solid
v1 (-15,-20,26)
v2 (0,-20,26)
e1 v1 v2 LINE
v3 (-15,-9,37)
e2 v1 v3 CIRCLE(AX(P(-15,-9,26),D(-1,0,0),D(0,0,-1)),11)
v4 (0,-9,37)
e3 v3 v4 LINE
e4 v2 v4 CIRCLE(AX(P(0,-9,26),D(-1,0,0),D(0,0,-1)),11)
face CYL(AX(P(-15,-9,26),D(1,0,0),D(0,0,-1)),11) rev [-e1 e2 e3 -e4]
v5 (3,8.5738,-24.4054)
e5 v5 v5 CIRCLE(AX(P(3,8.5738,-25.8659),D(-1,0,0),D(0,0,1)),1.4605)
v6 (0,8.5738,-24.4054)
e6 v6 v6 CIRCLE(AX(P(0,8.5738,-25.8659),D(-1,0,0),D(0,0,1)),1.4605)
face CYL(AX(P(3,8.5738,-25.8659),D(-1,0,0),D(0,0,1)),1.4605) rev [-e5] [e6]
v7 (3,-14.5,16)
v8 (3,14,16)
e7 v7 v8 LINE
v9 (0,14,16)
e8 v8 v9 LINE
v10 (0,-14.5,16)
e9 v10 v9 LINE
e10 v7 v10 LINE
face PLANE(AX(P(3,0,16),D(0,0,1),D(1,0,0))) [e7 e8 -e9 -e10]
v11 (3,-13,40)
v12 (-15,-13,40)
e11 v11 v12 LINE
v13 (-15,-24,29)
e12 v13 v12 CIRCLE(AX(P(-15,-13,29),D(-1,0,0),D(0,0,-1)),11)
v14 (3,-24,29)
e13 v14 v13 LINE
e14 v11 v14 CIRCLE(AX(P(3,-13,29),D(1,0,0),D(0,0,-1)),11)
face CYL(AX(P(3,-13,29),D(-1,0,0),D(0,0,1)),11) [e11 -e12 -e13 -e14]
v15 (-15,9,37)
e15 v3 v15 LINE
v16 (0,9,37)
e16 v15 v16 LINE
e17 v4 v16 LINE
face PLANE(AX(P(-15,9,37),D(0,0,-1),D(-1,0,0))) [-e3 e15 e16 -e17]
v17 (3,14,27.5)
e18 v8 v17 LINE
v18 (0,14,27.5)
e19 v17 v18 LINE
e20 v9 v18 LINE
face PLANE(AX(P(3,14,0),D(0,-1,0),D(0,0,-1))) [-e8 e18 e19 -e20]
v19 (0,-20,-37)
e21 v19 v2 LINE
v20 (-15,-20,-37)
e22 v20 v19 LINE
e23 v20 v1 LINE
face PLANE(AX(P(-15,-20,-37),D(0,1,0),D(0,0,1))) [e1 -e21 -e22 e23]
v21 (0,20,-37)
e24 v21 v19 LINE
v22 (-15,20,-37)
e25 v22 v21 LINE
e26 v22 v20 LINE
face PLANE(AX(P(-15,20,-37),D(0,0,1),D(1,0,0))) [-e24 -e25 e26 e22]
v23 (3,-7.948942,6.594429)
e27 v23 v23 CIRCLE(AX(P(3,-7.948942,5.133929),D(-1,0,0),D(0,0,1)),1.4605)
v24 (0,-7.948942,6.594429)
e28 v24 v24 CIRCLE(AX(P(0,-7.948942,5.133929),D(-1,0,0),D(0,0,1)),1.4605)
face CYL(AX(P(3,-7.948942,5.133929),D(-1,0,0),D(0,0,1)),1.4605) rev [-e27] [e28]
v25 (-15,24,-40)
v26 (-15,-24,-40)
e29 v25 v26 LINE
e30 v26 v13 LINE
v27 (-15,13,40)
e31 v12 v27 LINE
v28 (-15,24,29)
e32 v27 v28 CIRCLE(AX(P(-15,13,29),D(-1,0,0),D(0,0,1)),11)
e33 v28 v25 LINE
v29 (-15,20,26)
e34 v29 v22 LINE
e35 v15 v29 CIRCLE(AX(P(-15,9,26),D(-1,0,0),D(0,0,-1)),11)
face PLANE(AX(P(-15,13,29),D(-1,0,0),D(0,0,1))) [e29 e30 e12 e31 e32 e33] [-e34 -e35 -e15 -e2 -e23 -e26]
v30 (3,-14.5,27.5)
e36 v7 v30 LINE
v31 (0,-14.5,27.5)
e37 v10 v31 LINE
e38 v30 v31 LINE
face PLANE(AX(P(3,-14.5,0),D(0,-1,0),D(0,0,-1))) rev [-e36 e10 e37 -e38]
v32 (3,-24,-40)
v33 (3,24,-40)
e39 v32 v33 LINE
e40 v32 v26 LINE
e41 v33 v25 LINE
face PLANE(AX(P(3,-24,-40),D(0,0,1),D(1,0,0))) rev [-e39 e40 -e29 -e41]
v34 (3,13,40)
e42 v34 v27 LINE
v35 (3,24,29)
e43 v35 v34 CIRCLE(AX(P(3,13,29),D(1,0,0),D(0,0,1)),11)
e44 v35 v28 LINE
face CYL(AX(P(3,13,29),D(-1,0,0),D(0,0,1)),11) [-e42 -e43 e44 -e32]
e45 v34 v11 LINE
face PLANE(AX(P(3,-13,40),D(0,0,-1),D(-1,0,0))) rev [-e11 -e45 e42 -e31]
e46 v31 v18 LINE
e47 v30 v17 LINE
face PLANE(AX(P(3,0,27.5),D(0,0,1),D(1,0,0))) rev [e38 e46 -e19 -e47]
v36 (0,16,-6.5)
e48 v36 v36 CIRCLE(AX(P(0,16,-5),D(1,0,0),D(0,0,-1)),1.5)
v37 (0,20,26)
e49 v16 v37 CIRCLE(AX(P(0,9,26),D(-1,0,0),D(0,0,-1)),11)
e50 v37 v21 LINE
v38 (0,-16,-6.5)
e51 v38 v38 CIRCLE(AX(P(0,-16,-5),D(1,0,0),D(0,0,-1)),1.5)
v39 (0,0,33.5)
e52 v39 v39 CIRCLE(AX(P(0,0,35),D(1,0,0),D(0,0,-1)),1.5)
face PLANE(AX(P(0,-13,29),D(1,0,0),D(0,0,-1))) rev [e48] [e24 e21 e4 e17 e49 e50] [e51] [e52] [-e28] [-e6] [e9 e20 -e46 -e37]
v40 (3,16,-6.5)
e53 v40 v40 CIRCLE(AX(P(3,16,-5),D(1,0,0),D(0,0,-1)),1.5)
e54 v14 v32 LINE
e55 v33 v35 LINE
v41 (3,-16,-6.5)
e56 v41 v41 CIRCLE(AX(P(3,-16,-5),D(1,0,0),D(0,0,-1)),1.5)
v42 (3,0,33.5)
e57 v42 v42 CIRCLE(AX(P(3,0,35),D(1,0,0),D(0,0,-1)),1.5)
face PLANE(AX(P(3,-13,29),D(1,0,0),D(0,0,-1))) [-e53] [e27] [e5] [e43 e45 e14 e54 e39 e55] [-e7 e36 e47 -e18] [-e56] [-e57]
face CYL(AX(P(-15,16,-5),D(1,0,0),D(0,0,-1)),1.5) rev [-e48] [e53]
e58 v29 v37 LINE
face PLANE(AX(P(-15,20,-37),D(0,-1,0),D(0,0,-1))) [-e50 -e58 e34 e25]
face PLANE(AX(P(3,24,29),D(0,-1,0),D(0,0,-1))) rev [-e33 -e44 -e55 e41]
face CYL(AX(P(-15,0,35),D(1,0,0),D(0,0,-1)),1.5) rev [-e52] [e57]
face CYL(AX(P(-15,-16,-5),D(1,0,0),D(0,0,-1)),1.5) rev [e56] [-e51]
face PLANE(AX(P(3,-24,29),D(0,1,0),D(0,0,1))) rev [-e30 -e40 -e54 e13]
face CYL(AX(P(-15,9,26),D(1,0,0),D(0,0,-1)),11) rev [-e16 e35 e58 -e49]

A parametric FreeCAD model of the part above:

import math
import FreeCAD as App
import Part
import Sketcher
Q = App.Units.Quantity

doc = App.newDocument("Part")
body = doc.addObject("PartDesign::Body", "Body")

sketch1 = body.newObject("Sketcher::SketchObject", "Sketch")
sketch1.AttachmentSupport = (doc.getObject("YZ_Plane"), [""])
sketch1.MapMode = "FlatFace"
sketch1.addGeometry(Part.LineSegment(App.Vector(13, 40, 0), App.Vector(-13, 40, 0)), False)
sketch1.addGeometry(Part.ArcOfCircle(Part.Circle(App.Vector(-13, 29, 0), App.Vector(0, 0, 1), 11), math.radians(90), math.radians(180)), False)
sketch1.addGeometry(Part.LineSegment(App.Vector(-24, 29, 0), App.Vector(-24, -40, 0)), False)
sketch1.addGeometry(Part.LineSegment(App.Vector(-24, -40, 0), App.Vector(24, -40, 0)), False)
sketch1.addGeometry(Part.LineSegment(App.Vector(24, -40, 0), App.Vector(24, 29, 0)), False)
sketch1.addGeometry(Part.ArcOfCircle(Part.Circle(App.Vector(13, 29, 0), App.Vector(0, 0, 1), 11), math.radians(0), math.radians(90)), False)
sketch1.addConstraint(Sketcher.Constraint("Tangent", 0, 2, 1, 1))
sketch1.addConstraint(Sketcher.Constraint("Tangent", 1, 2, 2, 1))
sketch1.addConstraint(Sketcher.Constraint("Coincident", 2, 2, 3, 1))
sketch1.addConstraint(Sketcher.Constraint("Coincident", 3, 2, 4, 1))
sketch1.addConstraint(Sketcher.Constraint("Tangent", 4, 2, 5, 1))
sketch1.addConstraint(Sketcher.Constraint("Tangent", 5, 2, 0, 1))
sketch1.addConstraint(Sketcher.Constraint("Horizontal", 0))
sketch1.addConstraint(Sketcher.Constraint("Vertical", 2))
sketch1.addConstraint(Sketcher.Constraint("Horizontal", 3))
sketch1.addConstraint(Sketcher.Constraint("Vertical", 4))
sketch1.addConstraint(Sketcher.Constraint("Equal", 1, 5))
sketch1.addConstraint(Sketcher.Constraint("Radius", 1, Q("11 mm")))
sketch1.addConstraint(Sketcher.Constraint("DistanceX", 0, 2, 0, 1, Q("26 mm")))
sketch1.addConstraint(Sketcher.Constraint("DistanceY", 2, 2, 2, 1, Q("69 mm")))
sketch1.addConstraint(Sketcher.Constraint("DistanceX", 1, 3, -1, 1, Q("13 mm")))
sketch1.addConstraint(Sketcher.Constraint("DistanceY", -1, 1, 1, 3, Q("29 mm")))
pad1 = body.newObject("PartDesign::Pad", "Pad")
pad1.Profile = sketch1
pad1.Length = 3

sketch2 = body.newObject("Sketcher::SketchObject", "Sketch001")
sketch2.AttachmentSupport = (doc.getObject("YZ_Plane"), [""])
sketch2.MapMode = "FlatFace"
sketch2.AttachmentOffset = App.Placement(App.Vector(0, 0, -15), App.Rotation())
sketch2.addGeometry(Part.LineSegment(App.Vector(-13, 40, 0), App.Vector(13, 40, 0)), False)
sketch2.addGeometry(Part.ArcOfCircle(Part.Circle(App.Vector(13, 29, 0), App.Vector(0, 0, 1), 11), math.radians(0), math.radians(90)), False)
sketch2.addGeometry(Part.LineSegment(App.Vector(24, 29, 0), App.Vector(24, -40, 0)), False)
sketch2.addGeometry(Part.LineSegment(App.Vector(24, -40, 0), App.Vector(-24, -40, 0)), False)
sketch2.addGeometry(Part.LineSegment(App.Vector(-24, -40, 0), App.Vector(-24, 29, 0)), False)
sketch2.addGeometry(Part.ArcOfCircle(Part.Circle(App.Vector(-13, 29, 0), App.Vector(0, 0, 1), 11), math.radians(90), math.radians(180)), False)
sketch2.addGeometry(Part.LineSegment(App.Vector(20, -37, 0), App.Vector(20, 26, 0)), False)
sketch2.addGeometry(Part.ArcOfCircle(Part.Circle(App.Vector(9, 26, 0), App.Vector(0, 0, 1), 11), math.radians(0), math.radians(90)), False)
sketch2.addGeometry(Part.LineSegment(App.Vector(9, 37, 0), App.Vector(-9, 37, 0)), False)
sketch2.addGeometry(Part.ArcOfCircle(Part.Circle(App.Vector(-9, 26, 0), App.Vector(0, 0, 1), 11), math.radians(90), math.radians(180)), False)
sketch2.addGeometry(Part.LineSegment(App.Vector(-20, 26, 0), App.Vector(-20, -37, 0)), False)
sketch2.addGeometry(Part.LineSegment(App.Vector(-20, -37, 0), App.Vector(20, -37, 0)), False)
sketch2.addConstraint(Sketcher.Constraint("Tangent", 0, 2, 1, 2))
sketch2.addConstraint(Sketcher.Constraint("Tangent", 1, 1, 2, 1))
sketch2.addConstraint(Sketcher.Constraint("Coincident", 2, 2, 3, 1))
sketch2.addConstraint(Sketcher.Constraint("Coincident", 3, 2, 4, 1))
sketch2.addConstraint(Sketcher.Constraint("Tangent", 4, 2, 5, 2))
sketch2.addConstraint(Sketcher.Constraint("Tangent", 5, 1, 0, 1))
sketch2.addConstraint(Sketcher.Constraint("Tangent", 6, 2, 7, 1))
sketch2.addConstraint(Sketcher.Constraint("Tangent", 7, 2, 8, 1))
sketch2.addConstraint(Sketcher.Constraint("Tangent", 8, 2, 9, 1))
sketch2.addConstraint(Sketcher.Constraint("Tangent", 9, 2, 10, 1))
sketch2.addConstraint(Sketcher.Constraint("Coincident", 10, 2, 11, 1))
sketch2.addConstraint(Sketcher.Constraint("Coincident", 11, 2, 6, 1))
sketch2.addConstraint(Sketcher.Constraint("Horizontal", 0))
sketch2.addConstraint(Sketcher.Constraint("Vertical", 2))
sketch2.addConstraint(Sketcher.Constraint("Horizontal", 3))
sketch2.addConstraint(Sketcher.Constraint("Vertical", 4))
sketch2.addConstraint(Sketcher.Constraint("Vertical", 6))
sketch2.addConstraint(Sketcher.Constraint("Horizontal", 8))
sketch2.addConstraint(Sketcher.Constraint("Vertical", 10))
sketch2.addConstraint(Sketcher.Constraint("Horizontal", 11))
sketch2.addConstraint(Sketcher.Constraint("Equal", 1, 5))
sketch2.addConstraint(Sketcher.Constraint("Equal", 5, 7))
sketch2.addConstraint(Sketcher.Constraint("Equal", 7, 9))
sketch2.addConstraint(Sketcher.Constraint("Radius", 1, Q("11 mm")))
sketch2.addConstraint(Sketcher.Constraint("DistanceX", 0, 1, 0, 2, Q("26 mm")))
sketch2.addConstraint(Sketcher.Constraint("DistanceX", 8, 2, 8, 1, Q("18 mm")))
sketch2.addConstraint(Sketcher.Constraint("DistanceY", 2, 2, 2, 1, Q("69 mm")))
sketch2.addConstraint(Sketcher.Constraint("DistanceY", 6, 1, 6, 2, Q("63 mm")))
sketch2.addConstraint(Sketcher.Constraint("DistanceX", -1, 1, 1, 3, Q("13 mm")))
sketch2.addConstraint(Sketcher.Constraint("DistanceY", -1, 1, 1, 3, Q("29 mm")))
sketch2.addConstraint(Sketcher.Constraint("DistanceX", -1, 1, 7, 3, Q("9 mm")))
sketch2.addConstraint(Sketcher.Constraint("DistanceY", -1, 1, 7, 3, Q("26 mm")))
pad2 = body.newObject("PartDesign::Pad", "Pad001")
pad2.Profile = sketch2
pad2.Length = 15

sketch3 = body.newObject("Sketcher::SketchObject", "Sketch002")
sketch3.AttachmentSupport = (doc.getObject("YZ_Plane"), [""])
sketch3.MapMode = "FlatFace"
sketch3.AttachmentOffset = App.Placement(App.Vector(0, 0, 3), App.Rotation())
sketch3.addGeometry(Part.Circle(App.Vector(0, 35, 0), App.Vector(0, 0, 1), 1.5), False)
sketch3.addGeometry(Part.Circle(App.Vector(16, -5, 0), App.Vector(0, 0, 1), 1.5), False)
sketch3.addGeometry(Part.Circle(App.Vector(-16, -5, 0), App.Vector(0, 0, 1), 1.5), False)
sketch3.addConstraint(Sketcher.Constraint("Equal", 0, 1))
sketch3.addConstraint(Sketcher.Constraint("Equal", 1, 2))
sketch3.addConstraint(Sketcher.Constraint("Symmetric", 1, 3, 2, 3, -2))
sketch3.addConstraint(Sketcher.Constraint("PointOnObject", 0, 3, -2))
sketch3.addConstraint(Sketcher.Constraint("Diameter", 0, Q("3 mm")))
sketch3.addConstraint(Sketcher.Constraint("DistanceY", -1, 1, 0, 3, Q("35 mm")))
sketch3.addConstraint(Sketcher.Constraint("DistanceX", -1, 1, 1, 3, Q("16 mm")))
sketch3.addConstraint(Sketcher.Constraint("DistanceY", 1, 3, -1, 1, Q("5 mm")))
pocket1 = body.newObject("PartDesign::Pocket", "Pocket")
pocket1.Profile = sketch3
pocket1.Type = "ThroughAll"

sketch4 = body.newObject("Sketcher::SketchObject", "Sketch003")
sketch4.AttachmentSupport = (doc.getObject("YZ_Plane"), [""])
sketch4.MapMode = "FlatFace"
sketch4.addGeometry(Part.Circle(App.Vector(-7.9, 5.1, 0), App.Vector(0, 0, 1), 1.5), False)
sketch4.addGeometry(Part.Circle(App.Vector(8.6, -25.9, 0), App.Vector(0, 0, 1), 1.5), False)
sketch4.addConstraint(Sketcher.Constraint("Equal", 0, 1))
sketch4.addConstraint(Sketcher.Constraint("Diameter", 0, Q("2.921 mm")))
sketch4.addConstraint(Sketcher.Constraint("DistanceX", -1, 1, 1, 3, Q("8.5738 mm")))
sketch4.addConstraint(Sketcher.Constraint("DistanceY", 1, 3, -1, 1, Q("25.8659 mm")))
sketch4.addConstraint(Sketcher.Constraint("DistanceY", -1, 1, 0, 3, Q("5.133929 mm")))
sketch4.addConstraint(Sketcher.Constraint("DistanceX", 0, 3, -1, 1, Q("7.948942 mm")))
pocket2 = body.newObject("PartDesign::Pocket", "Pocket001")
pocket2.Profile = sketch4
pocket2.Type = "ThroughAll"
pocket2.Reversed = True

sketch5 = body.newObject("Sketcher::SketchObject", "Sketch004")
sketch5.AttachmentSupport = (doc.getObject("YZ_Plane"), [""])
sketch5.MapMode = "FlatFace"
sketch5.addGeometry(Part.LineSegment(App.Vector(14, 28, 0), App.Vector(14, 16, 0)), False)
sketch5.addGeometry(Part.LineSegment(App.Vector(14, 16, 0), App.Vector(-14, 16, 0)), False)
sketch5.addGeometry(Part.LineSegment(App.Vector(-14, 16, 0), App.Vector(-14, 28, 0)), False)
sketch5.addGeometry(Part.LineSegment(App.Vector(-14, 28, 0), App.Vector(14, 28, 0)), False)
sketch5.addConstraint(Sketcher.Constraint("Coincident", 0, 2, 1, 1))
sketch5.addConstraint(Sketcher.Constraint("Coincident", 1, 2, 2, 1))
sketch5.addConstraint(Sketcher.Constraint("Coincident", 2, 2, 3, 1))
sketch5.addConstraint(Sketcher.Constraint("Coincident", 3, 2, 0, 1))
sketch5.addConstraint(Sketcher.Constraint("Vertical", 0))
sketch5.addConstraint(Sketcher.Constraint("Horizontal", 1))
sketch5.addConstraint(Sketcher.Constraint("Vertical", 2))
sketch5.addConstraint(Sketcher.Constraint("Horizontal", 3))
sketch5.addConstraint(Sketcher.Constraint("DistanceX", 1, 2, 1, 1, Q("28.5 mm")))
sketch5.addConstraint(Sketcher.Constraint("DistanceY", 0, 2, 0, 1, Q("11.5 mm")))
sketch5.addConstraint(Sketcher.Constraint("DistanceX", -1, 1, 0, 2, Q("14 mm")))
sketch5.addConstraint(Sketcher.Constraint("DistanceY", -1, 1, 0, 2, Q("16 mm")))
pocket3 = body.newObject("PartDesign::Pocket", "Pocket002")
pocket3.Profile = sketch5
pocket3.Length = 50
pocket3.Reversed = True

doc.recompute()
